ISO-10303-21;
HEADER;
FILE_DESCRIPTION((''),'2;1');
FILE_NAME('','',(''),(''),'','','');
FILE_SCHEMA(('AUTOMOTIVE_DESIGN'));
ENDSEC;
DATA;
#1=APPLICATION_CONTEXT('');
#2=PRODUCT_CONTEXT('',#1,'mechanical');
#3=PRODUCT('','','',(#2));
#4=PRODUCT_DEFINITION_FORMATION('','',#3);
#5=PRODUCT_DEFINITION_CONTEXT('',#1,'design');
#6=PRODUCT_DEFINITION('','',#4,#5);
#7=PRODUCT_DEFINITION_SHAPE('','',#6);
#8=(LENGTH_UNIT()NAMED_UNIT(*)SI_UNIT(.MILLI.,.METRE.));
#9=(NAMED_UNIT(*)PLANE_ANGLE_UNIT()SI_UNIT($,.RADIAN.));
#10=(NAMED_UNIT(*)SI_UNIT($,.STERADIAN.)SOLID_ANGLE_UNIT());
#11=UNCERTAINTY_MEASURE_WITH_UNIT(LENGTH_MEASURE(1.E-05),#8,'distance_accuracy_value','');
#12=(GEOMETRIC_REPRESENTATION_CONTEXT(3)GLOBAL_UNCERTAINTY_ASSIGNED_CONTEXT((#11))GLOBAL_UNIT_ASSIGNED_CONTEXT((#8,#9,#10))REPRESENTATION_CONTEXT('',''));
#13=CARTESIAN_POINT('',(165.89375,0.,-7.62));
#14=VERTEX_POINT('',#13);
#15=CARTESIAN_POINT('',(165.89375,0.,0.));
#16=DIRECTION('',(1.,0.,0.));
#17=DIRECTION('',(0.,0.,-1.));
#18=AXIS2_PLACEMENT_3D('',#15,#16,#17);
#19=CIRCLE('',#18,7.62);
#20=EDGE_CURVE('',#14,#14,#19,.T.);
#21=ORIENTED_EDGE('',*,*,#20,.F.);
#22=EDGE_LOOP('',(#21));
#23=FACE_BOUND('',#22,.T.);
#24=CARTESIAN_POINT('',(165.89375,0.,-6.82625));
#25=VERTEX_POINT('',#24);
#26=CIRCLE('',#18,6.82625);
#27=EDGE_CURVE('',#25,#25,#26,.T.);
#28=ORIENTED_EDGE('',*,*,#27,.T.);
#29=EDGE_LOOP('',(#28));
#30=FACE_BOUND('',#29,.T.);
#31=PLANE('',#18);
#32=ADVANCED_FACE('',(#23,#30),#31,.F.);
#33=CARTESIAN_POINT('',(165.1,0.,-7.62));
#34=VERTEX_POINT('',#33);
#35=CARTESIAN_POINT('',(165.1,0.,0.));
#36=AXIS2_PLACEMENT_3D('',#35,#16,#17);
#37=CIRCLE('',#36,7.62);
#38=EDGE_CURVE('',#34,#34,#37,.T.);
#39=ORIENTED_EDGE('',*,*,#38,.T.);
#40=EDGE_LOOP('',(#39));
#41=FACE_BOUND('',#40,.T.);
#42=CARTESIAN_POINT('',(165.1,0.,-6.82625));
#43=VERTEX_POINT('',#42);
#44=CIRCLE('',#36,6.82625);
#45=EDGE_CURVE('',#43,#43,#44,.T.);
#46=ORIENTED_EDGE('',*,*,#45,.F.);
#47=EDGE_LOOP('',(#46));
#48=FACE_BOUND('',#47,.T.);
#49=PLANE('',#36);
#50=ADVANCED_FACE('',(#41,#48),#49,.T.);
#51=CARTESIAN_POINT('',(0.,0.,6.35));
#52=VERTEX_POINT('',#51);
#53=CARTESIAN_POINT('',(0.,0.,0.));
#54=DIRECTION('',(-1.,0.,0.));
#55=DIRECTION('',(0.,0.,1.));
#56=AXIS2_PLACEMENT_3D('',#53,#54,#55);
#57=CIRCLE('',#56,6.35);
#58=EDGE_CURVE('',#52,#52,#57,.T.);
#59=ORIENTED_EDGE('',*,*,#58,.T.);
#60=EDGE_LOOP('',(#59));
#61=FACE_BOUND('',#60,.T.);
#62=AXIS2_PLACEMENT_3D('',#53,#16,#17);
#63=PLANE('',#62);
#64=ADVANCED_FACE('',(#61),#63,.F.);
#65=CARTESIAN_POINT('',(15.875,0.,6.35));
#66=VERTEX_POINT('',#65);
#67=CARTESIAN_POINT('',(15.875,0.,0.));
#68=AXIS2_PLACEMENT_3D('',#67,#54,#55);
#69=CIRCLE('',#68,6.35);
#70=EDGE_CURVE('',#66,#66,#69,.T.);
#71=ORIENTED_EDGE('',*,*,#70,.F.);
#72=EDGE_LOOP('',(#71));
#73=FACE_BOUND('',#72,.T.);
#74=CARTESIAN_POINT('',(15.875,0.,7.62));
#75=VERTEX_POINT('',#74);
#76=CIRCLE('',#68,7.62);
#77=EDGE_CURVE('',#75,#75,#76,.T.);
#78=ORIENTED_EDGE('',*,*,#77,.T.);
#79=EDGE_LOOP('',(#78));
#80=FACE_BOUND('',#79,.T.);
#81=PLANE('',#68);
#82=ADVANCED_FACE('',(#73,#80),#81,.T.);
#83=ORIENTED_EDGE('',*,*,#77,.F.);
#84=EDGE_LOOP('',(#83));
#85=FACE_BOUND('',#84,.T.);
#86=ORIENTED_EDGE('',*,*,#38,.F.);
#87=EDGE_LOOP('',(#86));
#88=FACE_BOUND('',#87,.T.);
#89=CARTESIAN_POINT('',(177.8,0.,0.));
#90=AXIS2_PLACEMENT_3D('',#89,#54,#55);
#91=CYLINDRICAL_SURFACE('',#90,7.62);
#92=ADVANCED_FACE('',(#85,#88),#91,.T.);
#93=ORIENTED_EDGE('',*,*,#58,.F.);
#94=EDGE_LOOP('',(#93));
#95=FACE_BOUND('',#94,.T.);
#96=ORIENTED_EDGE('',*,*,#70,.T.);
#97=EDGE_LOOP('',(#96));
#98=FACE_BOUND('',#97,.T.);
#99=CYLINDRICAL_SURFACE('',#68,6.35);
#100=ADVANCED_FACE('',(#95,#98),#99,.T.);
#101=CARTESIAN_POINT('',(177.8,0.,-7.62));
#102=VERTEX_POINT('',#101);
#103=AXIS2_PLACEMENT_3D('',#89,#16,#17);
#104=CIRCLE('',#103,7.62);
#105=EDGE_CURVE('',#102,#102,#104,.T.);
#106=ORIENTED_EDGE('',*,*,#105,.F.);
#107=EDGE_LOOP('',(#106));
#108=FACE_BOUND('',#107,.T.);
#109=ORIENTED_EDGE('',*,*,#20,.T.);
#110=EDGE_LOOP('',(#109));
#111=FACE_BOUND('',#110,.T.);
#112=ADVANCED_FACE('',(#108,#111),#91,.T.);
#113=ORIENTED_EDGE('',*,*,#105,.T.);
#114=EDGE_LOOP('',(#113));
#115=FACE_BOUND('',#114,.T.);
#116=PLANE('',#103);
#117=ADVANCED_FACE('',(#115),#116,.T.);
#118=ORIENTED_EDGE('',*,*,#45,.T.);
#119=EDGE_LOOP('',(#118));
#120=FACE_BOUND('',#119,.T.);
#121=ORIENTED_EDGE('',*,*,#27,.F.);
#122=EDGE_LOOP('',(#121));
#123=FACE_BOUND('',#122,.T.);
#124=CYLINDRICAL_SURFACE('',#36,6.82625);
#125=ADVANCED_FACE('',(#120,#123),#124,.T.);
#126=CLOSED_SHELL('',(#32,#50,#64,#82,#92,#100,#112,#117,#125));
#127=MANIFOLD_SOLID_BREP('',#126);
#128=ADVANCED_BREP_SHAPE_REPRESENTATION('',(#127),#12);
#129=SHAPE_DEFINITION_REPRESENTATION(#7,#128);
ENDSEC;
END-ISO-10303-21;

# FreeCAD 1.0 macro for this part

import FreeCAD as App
import Part
import Sketcher
from FreeCAD import Vector
Q = App.Units.Quantity

doc = App.newDocument("Part")
params = doc.addObject("Spreadsheet::Sheet", "Params")
for row, (alias, value) in enumerate([
    ("sketch1_diameter", "0.6 in"),
    ("pad1_length", "7 in"),
    ("sketch2_diameter", "0.6 in"),
    ("pocket1_length", "0.03125 in"),
    ("sketch3_diameter", "0.6 in"),
    ("sketch3_diameter2", "0.5 in"),
    ("pocket2_length", "0.625 in"),
], start=1):
    params.set(f"A{row}", alias)
    params.set(f"B{row}", "=" + value)
    params.setAlias(f"B{row}", alias)

body = doc.addObject("PartDesign::Body", "Body")

sketch1 = body.newObject("Sketcher::SketchObject", "Sketch")
sketch1.AttachmentSupport = (doc.getObject("YZ_Plane"), [""])
sketch1.MapMode = "FlatFace"
sketch1.addGeometry(Part.Circle(Vector(0, 0, 0), Vector(0, 0, 1), 8), False)
sketch1.addConstraint(Sketcher.Constraint("Coincident", 0, 3, -1, 1))
sketch1.addConstraint(Sketcher.Constraint("Diameter", 0, Q("0.6 in")))
sketch1.setExpression("Constraints[1]", "Params.sketch1_diameter")
pad1 = body.newObject("PartDesign::Pad", "Pad")
pad1.Profile = sketch1
pad1.setExpression("Length", "Params.pad1_length")

sketch2 = body.newObject("Sketcher::SketchObject", "Sketch001")
sketch2.AttachmentSupport = (doc.getObject("YZ_Plane"), [""])
sketch2.MapMode = "FlatFace"
sketch2.AttachmentOffset = App.Placement(Vector(0, 0, 6.5 * 25.4), App.Rotation())
sketch2.addGeometry(Part.Circle(Vector(0, 0, 0), Vector(0, 0, 1), 8), False)
sketch2.addGeometry(Part.Circle(Vector(0, 0, 0), Vector(0, 0, 1), 7), False)
sketch2.addConstraint(Sketcher.Constraint("Coincident", 0, 3, -1, 1))
sketch2.addConstraint(Sketcher.Constraint("Coincident", 1, 3, -1, 1))
sketch2.addConstraint(Sketcher.Constraint("Diameter", 0, Q("0.6 in")))
sketch2.addConstraint(Sketcher.Constraint("Diameter", 1, Q("0.5375 in")))
sketch2.setExpression("Constraints[2]", "Params.sketch2_diameter")
pocket1 = body.newObject("PartDesign::Pocket", "Pocket")
pocket1.Profile = sketch2
pocket1.setExpression("Length", "Params.pocket1_length")
pocket1.Reversed = True

sketch3 = body.newObject("Sketcher::SketchObject", "Sketch002")
sketch3.AttachmentSupport = (doc.getObject("YZ_Plane"), [""])
sketch3.MapMode = "FlatFace"
sketch3.addGeometry(Part.Circle(Vector(0, 0, 0), Vector(0, 0, 1), 8), False)
sketch3.addGeometry(Part.Circle(Vector(0, 0, 0), Vector(0, 0, 1), 6), False)
sketch3.addConstraint(Sketcher.Constraint("Coincident", 0, 3, -1, 1))
sketch3.addConstraint(Sketcher.Constraint("Coincident", 1, 3, -1, 1))
sketch3.addConstraint(Sketcher.Constraint("Diameter", 0, Q("0.6 in")))
sketch3.addConstraint(Sketcher.Constraint("Diameter", 1, Q("0.5 in")))
sketch3.setExpression("Constraints[2]", "Params.sketch3_diameter")
sketch3.setExpression("Constraints[3]", "Params.sketch3_diameter2")
pocket2 = body.newObject("PartDesign::Pocket", "Pocket001")
pocket2.Profile = sketch3
pocket2.setExpression("Length", "Params.pocket2_length")
pocket2.Reversed = True

doc.recompute()
